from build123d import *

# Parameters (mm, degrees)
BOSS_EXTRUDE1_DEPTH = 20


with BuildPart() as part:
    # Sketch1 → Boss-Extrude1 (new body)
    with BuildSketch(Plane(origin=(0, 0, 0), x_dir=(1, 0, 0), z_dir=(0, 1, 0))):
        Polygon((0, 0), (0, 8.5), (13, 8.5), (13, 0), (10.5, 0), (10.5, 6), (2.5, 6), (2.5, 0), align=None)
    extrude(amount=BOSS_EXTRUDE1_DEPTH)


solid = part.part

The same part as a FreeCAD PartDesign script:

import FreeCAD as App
import Part
import Sketcher
Q = App.Units.Quantity


def add_polygon(sketch, points):
    """Adds a closed chain of lines whose ends are joined by coincident constraints."""
    first, n = sketch.GeometryCount, len(points)
    for a, b in zip(points, points[1:] + points[:1]):
        sketch.addGeometry(Part.LineSegment(App.Vector(*a, 0), App.Vector(*b, 0)), False)
    for i in range(n):
        sketch.addConstraint(Sketcher.Constraint("Coincident", first + i, 2, first + (i + 1) % n, 1))

doc = App.newDocument("Part")
body = doc.addObject("PartDesign::Body", "Body")

# Sketch on XZ plane
sketch1 = doc.addObject("Sketcher::SketchObject", "Sketch")
body.addObject(sketch1)
sketch1.AttachmentSupport = (doc.XZ_Plane, [""])
sketch1.MapMode = "FlatFace"
add_polygon(sketch1, [(0, -8.5), (0, 0), (2.5, 0), (2.5, -6), (10.5, -6), (10.5, 0), (13, 0), (13, -8.5)])  # lines 0-7
sketch1.addConstraint([
    Sketcher.Constraint("Vertical", 0),
    Sketcher.Constraint("Horizontal", 1),
    Sketcher.Constraint("Vertical", 2),
    Sketcher.Constraint("Horizontal", 3),
    Sketcher.Constraint("Vertical", 4),
    Sketcher.Constraint("Horizontal", 5),
    Sketcher.Constraint("Vertical", 6),
    Sketcher.Constraint("Horizontal", 7),
    Sketcher.Constraint("Coincident", 0, 2, -1, 1),
    Sketcher.Constraint("PointOnObject", 4, 2, -1),
    Sketcher.Constraint("Equal", 1, 5),
    Sketcher.Constraint("DistanceX", 3, 1, 3, 2, Q("8 mm")),
    Sketcher.Constraint("DistanceX", 7, 2, 7, 1, Q("13 mm")),
    Sketcher.Constraint("DistanceY", 2, 2, 2, 1, Q("6 mm")),
    Sketcher.Constraint("DistanceY", 0, 1, 0, 2, Q("8.5 mm")),
])
pad1 = doc.addObject("PartDesign::Pad", "Pad")
body.addObject(pad1)
pad1.Profile = sketch1
pad1.Length = 20
pad1.Reversed = True

doc.recompute()
